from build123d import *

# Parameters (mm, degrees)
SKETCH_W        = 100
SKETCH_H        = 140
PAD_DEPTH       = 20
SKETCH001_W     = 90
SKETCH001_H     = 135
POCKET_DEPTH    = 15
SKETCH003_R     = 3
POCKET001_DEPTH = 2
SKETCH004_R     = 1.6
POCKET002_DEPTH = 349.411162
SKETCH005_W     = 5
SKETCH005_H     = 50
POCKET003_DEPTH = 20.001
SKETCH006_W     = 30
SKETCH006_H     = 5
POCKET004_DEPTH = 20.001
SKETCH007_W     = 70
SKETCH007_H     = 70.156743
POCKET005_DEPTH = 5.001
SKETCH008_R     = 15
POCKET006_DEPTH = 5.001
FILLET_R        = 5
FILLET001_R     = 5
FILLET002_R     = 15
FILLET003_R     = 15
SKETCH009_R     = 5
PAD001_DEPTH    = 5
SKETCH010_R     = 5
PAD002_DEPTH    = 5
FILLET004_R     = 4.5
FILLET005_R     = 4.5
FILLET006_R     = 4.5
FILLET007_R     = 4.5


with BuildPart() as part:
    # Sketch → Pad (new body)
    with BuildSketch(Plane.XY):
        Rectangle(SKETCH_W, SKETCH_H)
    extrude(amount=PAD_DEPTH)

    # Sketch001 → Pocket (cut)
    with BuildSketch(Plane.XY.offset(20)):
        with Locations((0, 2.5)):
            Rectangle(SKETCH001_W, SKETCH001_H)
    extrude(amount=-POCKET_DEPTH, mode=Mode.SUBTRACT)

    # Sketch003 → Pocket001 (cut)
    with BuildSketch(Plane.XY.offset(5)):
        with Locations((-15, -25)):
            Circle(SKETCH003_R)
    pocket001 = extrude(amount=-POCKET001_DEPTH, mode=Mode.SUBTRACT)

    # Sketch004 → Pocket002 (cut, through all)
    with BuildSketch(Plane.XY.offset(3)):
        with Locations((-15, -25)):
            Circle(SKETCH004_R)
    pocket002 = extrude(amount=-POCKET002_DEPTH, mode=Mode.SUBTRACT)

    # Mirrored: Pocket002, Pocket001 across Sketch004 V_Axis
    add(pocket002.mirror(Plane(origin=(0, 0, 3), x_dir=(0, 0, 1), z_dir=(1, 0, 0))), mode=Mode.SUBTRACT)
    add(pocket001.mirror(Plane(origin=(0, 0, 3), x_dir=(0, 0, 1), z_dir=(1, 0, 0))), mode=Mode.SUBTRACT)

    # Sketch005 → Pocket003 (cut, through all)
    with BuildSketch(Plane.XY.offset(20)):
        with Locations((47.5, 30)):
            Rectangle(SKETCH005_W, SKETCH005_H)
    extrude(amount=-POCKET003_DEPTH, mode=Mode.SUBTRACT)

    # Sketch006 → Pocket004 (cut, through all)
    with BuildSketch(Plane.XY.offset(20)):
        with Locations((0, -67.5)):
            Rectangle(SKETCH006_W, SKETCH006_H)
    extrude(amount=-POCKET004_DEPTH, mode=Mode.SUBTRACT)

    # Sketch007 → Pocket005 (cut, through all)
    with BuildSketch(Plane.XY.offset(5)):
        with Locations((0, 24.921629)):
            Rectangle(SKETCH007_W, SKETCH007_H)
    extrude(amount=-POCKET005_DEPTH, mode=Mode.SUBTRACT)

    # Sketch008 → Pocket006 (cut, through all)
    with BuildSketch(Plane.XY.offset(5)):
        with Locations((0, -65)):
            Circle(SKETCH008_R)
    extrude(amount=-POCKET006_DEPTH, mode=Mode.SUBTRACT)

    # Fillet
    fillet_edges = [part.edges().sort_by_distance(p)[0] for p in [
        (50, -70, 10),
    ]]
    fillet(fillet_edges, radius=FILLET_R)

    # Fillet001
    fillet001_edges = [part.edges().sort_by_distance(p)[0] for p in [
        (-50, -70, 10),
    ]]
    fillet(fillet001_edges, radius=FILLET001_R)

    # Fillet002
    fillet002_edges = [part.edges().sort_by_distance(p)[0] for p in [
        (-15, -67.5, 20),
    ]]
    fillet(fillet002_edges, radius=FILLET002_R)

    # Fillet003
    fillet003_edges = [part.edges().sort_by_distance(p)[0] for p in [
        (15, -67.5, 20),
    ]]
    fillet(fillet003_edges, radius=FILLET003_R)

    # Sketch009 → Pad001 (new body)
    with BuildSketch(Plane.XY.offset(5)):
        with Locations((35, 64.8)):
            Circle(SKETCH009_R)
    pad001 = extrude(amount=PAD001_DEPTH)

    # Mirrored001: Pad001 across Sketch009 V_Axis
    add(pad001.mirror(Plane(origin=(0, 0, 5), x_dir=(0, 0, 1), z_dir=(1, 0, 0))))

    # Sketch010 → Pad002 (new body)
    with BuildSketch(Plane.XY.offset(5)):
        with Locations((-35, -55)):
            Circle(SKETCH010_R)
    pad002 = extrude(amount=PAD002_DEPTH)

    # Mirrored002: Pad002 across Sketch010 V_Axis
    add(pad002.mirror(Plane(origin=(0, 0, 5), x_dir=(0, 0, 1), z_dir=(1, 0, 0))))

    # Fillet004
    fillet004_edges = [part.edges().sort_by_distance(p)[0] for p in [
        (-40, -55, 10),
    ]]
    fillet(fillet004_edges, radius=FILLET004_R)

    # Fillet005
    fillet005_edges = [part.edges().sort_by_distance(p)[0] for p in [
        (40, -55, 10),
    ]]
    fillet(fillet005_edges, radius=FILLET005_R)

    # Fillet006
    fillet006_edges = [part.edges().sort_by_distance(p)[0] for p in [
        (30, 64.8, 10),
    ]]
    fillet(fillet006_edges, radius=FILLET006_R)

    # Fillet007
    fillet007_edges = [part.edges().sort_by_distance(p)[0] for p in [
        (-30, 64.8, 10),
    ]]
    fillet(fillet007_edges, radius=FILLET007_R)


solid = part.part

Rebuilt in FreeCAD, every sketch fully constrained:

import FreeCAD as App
import Part
import Sketcher


def edges_at(feature, points):
    """Names of the edges that pass closest to the given points."""
    edges = feature.Shape.Edges
    near = lambda p: min(range(len(edges)), key=lambda i: edges[i].distToShape(Part.Vertex(*p))[0])
    return sorted({f"Edge{near(p) + 1}" for p in points})

doc = App.newDocument("Part")
body = doc.addObject("PartDesign::Body", "Body")

# Sketch on XY plane
sketch1 = body.newObject("Sketcher::SketchObject", "Sketch")
sketch1.AttachmentSupport = (doc.getObject("XY_Plane"), [""])
sketch1.MapMode = "FlatFace"
sketch1.addGeometry(Part.LineSegment(App.Vector(-50, 70, 0), App.Vector(-50, -70, 0)), False)
sketch1.addGeometry(Part.LineSegment(App.Vector(-50, -70, 0), App.Vector(50, -70, 0)), False)
sketch1.addGeometry(Part.LineSegment(App.Vector(50, -70, 0), App.Vector(50, 70, 0)), False)
sketch1.addGeometry(Part.LineSegment(App.Vector(50, 70, 0), App.Vector(-50, 70, 0)), False)
sketch1.addConstraint(Sketcher.Constraint("Coincident", 0, 2, 1, 1))
sketch1.addConstraint(Sketcher.Constraint("Coincident", 1, 2, 2, 1))
sketch1.addConstraint(Sketcher.Constraint("Coincident", 2, 2, 3, 1))
sketch1.addConstraint(Sketcher.Constraint("Coincident", 3, 2, 0, 1))
sketch1.addConstraint(Sketcher.Constraint("Vertical", 0))
sketch1.addConstraint(Sketcher.Constraint("Horizontal", 1))
sketch1.addConstraint(Sketcher.Constraint("Vertical", 2))
sketch1.addConstraint(Sketcher.Constraint("Horizontal", 3))
sketch1.addConstraint(Sketcher.Constraint("Symmetric", 0, 2, 2, 2, -1, 1))
sketch1.addConstraint(Sketcher.Constraint("DistanceX", 1, 1, 1, 2, 100.0))
sketch1.addConstraint(Sketcher.Constraint("DistanceY", 0, 2, 0, 1, 140.0))
pad1 = body.newObject("PartDesign::Pad", "Pad")
pad1.Profile = sketch1
pad1.Length = 20

# Sketch on XY plane
sketch2 = body.newObject("Sketcher::SketchObject", "Sketch001")
sketch2.AttachmentSupport = (doc.getObject("XY_Plane"), [""])
sketch2.MapMode = "FlatFace"
sketch2.AttachmentOffset = App.Placement(App.Vector(0, 0, 20), App.Rotation())
sketch2.addGeometry(Part.LineSegment(App.Vector(-45, 70, 0), App.Vector(-45, -65, 0)), False)
sketch2.addGeometry(Part.LineSegment(App.Vector(-45, -65, 0), App.Vector(45, -65, 0)), False)
sketch2.addGeometry(Part.LineSegment(App.Vector(45, -65, 0), App.Vector(45, 70, 0)), False)
sketch2.addGeometry(Part.LineSegment(App.Vector(45, 70, 0), App.Vector(-45, 70, 0)), False)
sketch2.addConstraint(Sketcher.Constraint("Coincident", 0, 2, 1, 1))
sketch2.addConstraint(Sketcher.Constraint("Coincident", 1, 2, 2, 1))
sketch2.addConstraint(Sketcher.Constraint("Coincident", 2, 2, 3, 1))
sketch2.addConstraint(Sketcher.Constraint("Coincident", 3, 2, 0, 1))
sketch2.addConstraint(Sketcher.Constraint("Vertical", 0))
sketch2.addConstraint(Sketcher.Constraint("Horizontal", 1))
sketch2.addConstraint(Sketcher.Constraint("Vertical", 2))
sketch2.addConstraint(Sketcher.Constraint("Horizontal", 3))
sketch2.addConstraint(Sketcher.Constraint("DistanceX", 1, 1, 1, 2, 90.0))
sketch2.addConstraint(Sketcher.Constraint("DistanceY", 0, 2, 0, 1, 135.0))
sketch2.addConstraint(Sketcher.Constraint("DistanceX", 0, 2, -1, 1, 45.0))
sketch2.addConstraint(Sketcher.Constraint("DistanceY", 0, 2, -1, 1, 65.0))
pocket1 = body.newObject("PartDesign::Pocket", "Pocket")
pocket1.Profile = sketch2
pocket1.Length = 15

# Sketch on XY plane
sketch3 = body.newObject("Sketcher::SketchObject", "Sketch002")
sketch3.AttachmentSupport = (doc.getObject("XY_Plane"), [""])
sketch3.MapMode = "FlatFace"
sketch3.AttachmentOffset = App.Placement(App.Vector(0, 0, 5), App.Rotation())
sketch3.addGeometry(Part.Circle(App.Vector(-15, -25, 0), App.Vector(0, 0, 1), 3), False)
sketch3.addConstraint(Sketcher.Constraint("Diameter", 0, 6.0))
sketch3.addConstraint(Sketcher.Constraint("DistanceX", 0, 3, -1, 1, 15.0))
sketch3.addConstraint(Sketcher.Constraint("DistanceY", 0, 3, -1, 1, 25.0))
pocket2 = body.newObject("PartDesign::Pocket", "Pocket001")
pocket2.Profile = sketch3
pocket2.Length = 2

# Sketch on XY plane
sketch4 = body.newObject("Sketcher::SketchObject", "Sketch003")
sketch4.AttachmentSupport = (doc.getObject("XY_Plane"), [""])
sketch4.MapMode = "FlatFace"
sketch4.AttachmentOffset = App.Placement(App.Vector(0, 0, 3), App.Rotation())
sketch4.addGeometry(Part.Circle(App.Vector(-15, -25, 0), App.Vector(0, 0, 1), 1.6), False)
sketch4.addConstraint(Sketcher.Constraint("Diameter", 0, 3.2))
sketch4.addConstraint(Sketcher.Constraint("DistanceX", 0, 3, -1, 1, 15.0))
sketch4.addConstraint(Sketcher.Constraint("DistanceY", 0, 3, -1, 1, 25.0))
pocket3 = body.newObject("PartDesign::Pocket", "Pocket002")
pocket3.Profile = sketch4
pocket3.Type = "ThroughAll"
doc.recompute()

mirrored = body.newObject("PartDesign::Mirrored", "Mirrored")
mirrored.Originals = [pocket3, pocket2]
mirrored.MirrorPlane = (doc.getObject("YZ_Plane"), [""])
body.Tip = mirrored

# Sketch on XY plane
sketch5 = body.newObject("Sketcher::SketchObject", "Sketch004")
sketch5.AttachmentSupport = (doc.getObject("XY_Plane"), [""])
sketch5.MapMode = "FlatFace"
sketch5.AttachmentOffset = App.Placement(App.Vector(0, 0, 20), App.Rotation())
sketch5.addGeometry(Part.LineSegment(App.Vector(45, 55, 0), App.Vector(45, 5, 0)), False)
sketch5.addGeometry(Part.LineSegment(App.Vector(45, 5, 0), App.Vector(50, 5, 0)), False)
sketch5.addGeometry(Part.LineSegment(App.Vector(50, 5, 0), App.Vector(50, 55, 0)), False)
sketch5.addGeometry(Part.LineSegment(App.Vector(50, 55, 0), App.Vector(45, 55, 0)), False)
sketch5.addConstraint(Sketcher.Constraint("Coincident", 0, 2, 1, 1))
sketch5.addConstraint(Sketcher.Constraint("Coincident", 1, 2, 2, 1))
sketch5.addConstraint(Sketcher.Constraint("Coincident", 2, 2, 3, 1))
sketch5.addConstraint(Sketcher.Constraint("Coincident", 3, 2, 0, 1))
sketch5.addConstraint(Sketcher.Constraint("Vertical", 0))
sketch5.addConstraint(Sketcher.Constraint("Horizontal", 1))
sketch5.addConstraint(Sketcher.Constraint("Vertical", 2))
sketch5.addConstraint(Sketcher.Constraint("Horizontal", 3))
sketch5.addConstraint(Sketcher.Constraint("DistanceX", 1, 1, 1, 2, 5.0))
sketch5.addConstraint(Sketcher.Constraint("DistanceY", 0, 2, 0, 1, 50.0))
sketch5.addConstraint(Sketcher.Constraint("DistanceX", -1, 1, 0, 2, 45.0))
sketch5.addConstraint(Sketcher.Constraint("DistanceY", -1, 1, 0, 2, 5.0))
pocket4 = body.newObject("PartDesign::Pocket", "Pocket003")
pocket4.Profile = sketch5
pocket4.Type = "ThroughAll"

# Sketch on XY plane
sketch6 = body.newObject("Sketcher::SketchObject", "Sketch005")
sketch6.AttachmentSupport = (doc.getObject("XY_Plane"), [""])
sketch6.MapMode = "FlatFace"
sketch6.AttachmentOffset = App.Placement(App.Vector(0, 0, 20), App.Rotation())
sketch6.addGeometry(Part.LineSegment(App.Vector(-15, -65, 0), App.Vector(-15, -70, 0)), False)
sketch6.addGeometry(Part.LineSegment(App.Vector(-15, -70, 0), App.Vector(15, -70, 0)), False)
sketch6.addGeometry(Part.LineSegment(App.Vector(15, -70, 0), App.Vector(15, -65, 0)), False)
sketch6.addGeometry(Part.LineSegment(App.Vector(15, -65, 0), App.Vector(-15, -65, 0)), False)
sketch6.addConstraint(Sketcher.Constraint("Coincident", 0, 2, 1, 1))
sketch6.addConstraint(Sketcher.Constraint("Coincident", 1, 2, 2, 1))
sketch6.addConstraint(Sketcher.Constraint("Coincident", 2, 2, 3, 1))
sketch6.addConstraint(Sketcher.Constraint("Coincident", 3, 2, 0, 1))
sketch6.addConstraint(Sketcher.Constraint("Vertical", 0))
sketch6.addConstraint(Sketcher.Constraint("Horizontal", 1))
sketch6.addConstraint(Sketcher.Constraint("Vertical", 2))
sketch6.addConstraint(Sketcher.Constraint("Horizontal", 3))
sketch6.addConstraint(Sketcher.Constraint("DistanceX", 1, 1, 1, 2, 30.0))
sketch6.addConstraint(Sketcher.Constraint("DistanceY", 0, 2, 0, 1, 5.0))
sketch6.addConstraint(Sketcher.Constraint("DistanceX", 0, 2, -1, 1, 15.0))
sketch6.addConstraint(Sketcher.Constraint("DistanceY", 0, 2, -1, 1, 70.0))
pocket5 = body.newObject("PartDesign::Pocket", "Pocket004")
pocket5.Profile = sketch6
pocket5.Type = "ThroughAll"

# Sketch on XY plane
sketch7 = body.newObject("Sketcher::SketchObject", "Sketch006")
sketch7.AttachmentSupport = (doc.getObject("XY_Plane"), [""])
sketch7.MapMode = "FlatFace"
sketch7.AttachmentOffset = App.Placement(App.Vector(0, 0, 5), App.Rotation())
sketch7.addGeometry(Part.LineSegment(App.Vector(-35, 60, 0), App.Vector(-35, -10, 0)), False)
sketch7.addGeometry(Part.LineSegment(App.Vector(-35, -10, 0), App.Vector(35, -10, 0)), False)
sketch7.addGeometry(Part.LineSegment(App.Vector(35, -10, 0), App.Vector(35, 60, 0)), False)
sketch7.addGeometry(Part.LineSegment(App.Vector(35, 60, 0), App.Vector(-35, 60, 0)), False)
sketch7.addConstraint(Sketcher.Constraint("Coincident", 0, 2, 1, 1))
sketch7.addConstraint(Sketcher.Constraint("Coincident", 1, 2, 2, 1))
sketch7.addConstraint(Sketcher.Constraint("Coincident", 2, 2, 3, 1))
sketch7.addConstraint(Sketcher.Constraint("Coincident", 3, 2, 0, 1))
sketch7.addConstraint(Sketcher.Constraint("Vertical", 0))
sketch7.addConstraint(Sketcher.Constraint("Horizontal", 1))
sketch7.addConstraint(Sketcher.Constraint("Vertical", 2))
sketch7.addConstraint(Sketcher.Constraint("Horizontal", 3))
sketch7.addConstraint(Sketcher.Constraint("DistanceX", 1, 1, 1, 2, 70.0))
sketch7.addConstraint(Sketcher.Constraint("DistanceX", 0, 2, -1, 1, 35.0))
sketch7.addConstraint(Sketcher.Constraint("DistanceY", -1, 1, 2, 2, 60.0))
sketch7.addConstraint(Sketcher.Constraint("DistanceY", 0, 2, 0, 1, 70.156743))
pocket6 = body.newObject("PartDesign::Pocket", "Pocket005")
pocket6.Profile = sketch7
pocket6.Type = "ThroughAll"

# Sketch on XY plane
sketch8 = body.newObject("Sketcher::SketchObject", "Sketch007")
sketch8.AttachmentSupport = (doc.getObject("XY_Plane"), [""])
sketch8.MapMode = "FlatFace"
sketch8.AttachmentOffset = App.Placement(App.Vector(0, 0, 5), App.Rotation())
sketch8.addGeometry(Part.Circle(App.Vector(0, -65, 0), App.Vector(0, 0, 1), 15), False)
sketch8.addConstraint(Sketcher.Constraint("PointOnObject", 0, 3, -2))
sketch8.addConstraint(Sketcher.Constraint("Diameter", 0, 30.0))
sketch8.addConstraint(Sketcher.Constraint("DistanceY", 0, 3, -1, 1, 65.0))
pocket7 = body.newObject("PartDesign::Pocket", "Pocket006")
pocket7.Profile = sketch8
pocket7.Type = "ThroughAll"
doc.recompute()

fillet = body.newObject("PartDesign::Fillet", "Fillet")
fillet.Base = (pocket7, edges_at(pocket7, [(50, -70, 10)]))
fillet.Radius = 5
doc.recompute()

fillet2 = body.newObject("PartDesign::Fillet", "Fillet001")
fillet2.Base = (fillet, edges_at(fillet, [(-50, -70, 10)]))
fillet2.Radius = 5
doc.recompute()

fillet3 = body.newObject("PartDesign::Fillet", "Fillet002")
fillet3.Base = (fillet2, edges_at(fillet2, [(-15, -67.5, 20)]))
fillet3.Radius = 15
doc.recompute()

fillet4 = body.newObject("PartDesign::Fillet", "Fillet003")
fillet4.Base = (fillet3, edges_at(fillet3, [(15, -67.5, 20)]))
fillet4.Radius = 15

# Sketch on XY plane
sketch9 = body.newObject("Sketcher::SketchObject", "Sketch008")
sketch9.AttachmentSupport = (doc.getObject("XY_Plane"), [""])
sketch9.MapMode = "FlatFace"
sketch9.AttachmentOffset = App.Placement(App.Vector(0, 0, 5), App.Rotation())
sketch9.addGeometry(Part.Circle(App.Vector(35, 65, 0), App.Vector(0, 0, 1), 5), False)
sketch9.addConstraint(Sketcher.Constraint("Diameter", 0, 10.0))
sketch9.addConstraint(Sketcher.Constraint("DistanceX", -1, 1, 0, 3, 35.0))
sketch9.addConstraint(Sketcher.Constraint("DistanceY", -1, 1, 0, 3, 64.8))
pad2 = body.newObject("PartDesign::Pad", "Pad001")
pad2.Profile = sketch9
pad2.Length = 5
doc.recompute()

mirrored2 = body.newObject("PartDesign::Mirrored", "Mirrored001")
mirrored2.Originals = [pad2]
mirrored2.MirrorPlane = (doc.getObject("YZ_Plane"), [""])
body.Tip = mirrored2

# Sketch on XY plane
sketch10 = body.newObject("Sketcher::SketchObject", "Sketch009")
sketch10.AttachmentSupport = (doc.getObject("XY_Plane"), [""])
sketch10.MapMode = "FlatFace"
sketch10.AttachmentOffset = App.Placement(App.Vector(0, 0, 5), App.Rotation())
sketch10.addGeometry(Part.Circle(App.Vector(-35, -55, 0), App.Vector(0, 0, 1), 5), False)
sketch10.addConstraint(Sketcher.Constraint("Diameter", 0, 10.0))
sketch10.addConstraint(Sketcher.Constraint("DistanceX", 0, 3, -1, 1, 35.0))
sketch10.addConstraint(Sketcher.Constraint("DistanceY", 0, 3, -1, 1, 55.0))
pad3 = body.newObject("PartDesign::Pad", "Pad002")
pad3.Profile = sketch10
pad3.Length = 5
doc.recompute()

mirrored3 = body.newObject("PartDesign::Mirrored", "Mirrored002")
mirrored3.Originals = [pad3]
mirrored3.MirrorPlane = (doc.getObject("YZ_Plane"), [""])
body.Tip = mirrored3
doc.recompute()

fillet5 = body.newObject("PartDesign::Fillet", "Fillet004")
fillet5.Base = (mirrored3, edges_at(mirrored3, [(-40, -55, 10)]))
fillet5.Radius = 4.5
doc.recompute()

fillet6 = body.newObject("PartDesign::Fillet", "Fillet005")
fillet6.Base = (fillet5, edges_at(fillet5, [(40, -55, 10)]))
fillet6.Radius = 4.5
doc.recompute()

fillet7 = body.newObject("PartDesign::Fillet", "Fillet006")
fillet7.Base = (fillet6, edges_at(fillet6, [(30, 64.8, 10)]))
fillet7.Radius = 4.5
doc.recompute()

fillet8 = body.newObject("PartDesign::Fillet", "Fillet007")
fillet8.Base = (fillet7, edges_at(fillet7, [(-30, 64.8, 10)]))
fillet8.Radius = 4.5

doc.recompute()
